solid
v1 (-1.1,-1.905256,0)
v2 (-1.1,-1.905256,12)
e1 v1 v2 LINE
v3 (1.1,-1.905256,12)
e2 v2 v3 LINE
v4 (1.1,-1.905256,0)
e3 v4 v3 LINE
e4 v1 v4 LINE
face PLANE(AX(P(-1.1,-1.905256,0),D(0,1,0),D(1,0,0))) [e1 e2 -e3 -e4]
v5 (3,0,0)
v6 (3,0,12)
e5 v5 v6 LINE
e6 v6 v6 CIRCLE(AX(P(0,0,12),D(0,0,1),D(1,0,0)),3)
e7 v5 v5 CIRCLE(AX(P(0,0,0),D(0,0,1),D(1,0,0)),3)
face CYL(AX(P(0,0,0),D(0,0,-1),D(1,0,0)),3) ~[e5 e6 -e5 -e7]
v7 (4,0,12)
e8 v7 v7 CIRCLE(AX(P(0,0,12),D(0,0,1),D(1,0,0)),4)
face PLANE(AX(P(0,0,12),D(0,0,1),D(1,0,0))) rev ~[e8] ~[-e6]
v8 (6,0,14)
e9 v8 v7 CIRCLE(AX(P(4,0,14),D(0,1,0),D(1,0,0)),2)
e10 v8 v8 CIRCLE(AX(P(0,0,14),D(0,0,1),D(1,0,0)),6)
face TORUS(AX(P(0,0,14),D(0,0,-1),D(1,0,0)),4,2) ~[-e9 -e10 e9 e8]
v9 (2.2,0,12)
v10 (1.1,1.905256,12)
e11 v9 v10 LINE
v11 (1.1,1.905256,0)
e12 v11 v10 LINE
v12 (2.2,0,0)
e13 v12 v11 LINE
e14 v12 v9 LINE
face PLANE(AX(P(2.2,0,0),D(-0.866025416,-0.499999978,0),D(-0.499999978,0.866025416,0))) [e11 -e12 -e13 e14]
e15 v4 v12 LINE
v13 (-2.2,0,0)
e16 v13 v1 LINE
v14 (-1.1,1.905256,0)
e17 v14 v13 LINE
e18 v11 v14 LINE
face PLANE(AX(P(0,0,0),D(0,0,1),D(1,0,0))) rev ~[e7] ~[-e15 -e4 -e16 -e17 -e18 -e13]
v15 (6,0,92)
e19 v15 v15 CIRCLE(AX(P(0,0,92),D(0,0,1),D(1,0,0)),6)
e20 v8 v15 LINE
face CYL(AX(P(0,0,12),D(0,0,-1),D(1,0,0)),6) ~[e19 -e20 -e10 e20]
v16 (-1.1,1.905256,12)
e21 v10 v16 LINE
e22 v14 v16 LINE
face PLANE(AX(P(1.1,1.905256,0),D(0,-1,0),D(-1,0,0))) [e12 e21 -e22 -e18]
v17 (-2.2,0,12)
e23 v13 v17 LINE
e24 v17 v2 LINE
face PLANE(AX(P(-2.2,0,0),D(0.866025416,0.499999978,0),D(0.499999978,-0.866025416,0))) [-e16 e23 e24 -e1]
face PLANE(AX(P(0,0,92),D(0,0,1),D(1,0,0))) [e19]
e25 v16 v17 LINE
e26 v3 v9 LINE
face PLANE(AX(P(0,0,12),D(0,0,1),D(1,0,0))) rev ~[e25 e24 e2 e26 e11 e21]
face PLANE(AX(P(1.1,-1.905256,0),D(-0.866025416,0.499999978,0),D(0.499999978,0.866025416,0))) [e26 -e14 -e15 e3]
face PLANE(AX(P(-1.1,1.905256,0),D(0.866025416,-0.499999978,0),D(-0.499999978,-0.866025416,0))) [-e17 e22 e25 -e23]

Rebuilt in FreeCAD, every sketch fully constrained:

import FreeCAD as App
import Part
import Sketcher
from FreeCAD import Vector
Q = App.Units.Quantity


def edges_at(feature, points):
    """Names of the edges that pass closest to the given points."""
    edges = feature.Shape.Edges
    near = lambda p: min(range(len(edges)), key=lambda i: edges[i].distToShape(Part.Vertex(*p))[0])
    return sorted({f"Edge{near(p) + 1}" for p in points})

doc = App.newDocument("Part")
params = doc.addObject("Spreadsheet::Sheet", "Params")
for row, (alias, value) in enumerate([
    ("sketch1_diameter", "6 mm"),
    ("sketch1_width", "2.2 mm"),
    ("sketch1_length", "2.2 mm"),
    ("pad1_length", "12 mm"),
    ("sketch2_diameter", "12 mm"),
    ("pad2_length", "80 mm"),
    ("fillet_radius", "2 mm"),
], start=1):
    params.set(f"A{row}", alias)
    params.set(f"B{row}", "=" + value)
    params.setAlias(f"B{row}", alias)

body = doc.addObject("PartDesign::Body", "Body")

sketch1 = body.newObject("Sketcher::SketchObject", "Sketch")
sketch1.AttachmentSupport = (doc.getObject("XY_Plane"), [""])
sketch1.MapMode = "FlatFace"
sketch1.addGeometry([
    Part.Circle(Vector(0, 0, 0), Vector(0, 0, 1), 3),
    Part.LineSegment(Vector(1.1, 1.9, 0), Vector(2.2, 0, 0)),
    Part.LineSegment(Vector(2.2, 0, 0), Vector(1.1, -1.9, 0)),
    Part.LineSegment(Vector(1.1, -1.9, 0), Vector(-1.1, -1.9, 0)),
    Part.LineSegment(Vector(-1.1, -1.9, 0), Vector(-2.2, 0, 0)),
    Part.LineSegment(Vector(-2.2, 0, 0), Vector(-1.1, 1.9, 0)),
    Part.LineSegment(Vector(-1.1, 1.9, 0), Vector(1.1, 1.9, 0)),
], False)
sketch1.addConstraint([
    Sketcher.Constraint("Coincident", 1, 2, 2, 1),
    Sketcher.Constraint("Coincident", 2, 2, 3, 1),
    Sketcher.Constraint("Coincident", 3, 2, 4, 1),
    Sketcher.Constraint("Coincident", 4, 2, 5, 1),
    Sketcher.Constraint("Coincident", 5, 2, 6, 1),
    Sketcher.Constraint("Coincident", 6, 2, 1, 1),
    Sketcher.Constraint("Horizontal", 3),
    Sketcher.Constraint("Horizontal", 6),
    Sketcher.Constraint("Coincident", 0, 3, -1, 1),
    Sketcher.Constraint("Symmetric", 1, 2, 4, 2, -1, 1),
    Sketcher.Constraint("Symmetric", 2, 2, 5, 2, -1, 1),
    Sketcher.Constraint("PointOnObject", 1, 2, -1),
    Sketcher.Constraint("Parallel", 1, 4),
    Sketcher.Constraint("Vertical", 3, 2, 5, 2),
    Sketcher.Constraint("Diameter", 0, 6.0),
    Sketcher.Constraint("Angle", 1, Q("-60.000001 deg")),
    Sketcher.Constraint("DistanceX", 3, 2, 3, 1, 2.2),
    Sketcher.Constraint("Distance", 1, 2.2),
])
sketch1.setExpression("Constraints[14]", "Params.sketch1_diameter")
sketch1.setExpression("Constraints[16]", "Params.sketch1_width")
sketch1.setExpression("Constraints[17]", "Params.sketch1_length")
pad1 = body.newObject("PartDesign::Pad", "Pad")
pad1.Profile = sketch1
pad1.setExpression("Length", "Params.pad1_length")

sketch2 = body.newObject("Sketcher::SketchObject", "Sketch001")
sketch2.AttachmentSupport = (doc.getObject("XY_Plane"), [""])
sketch2.MapMode = "FlatFace"
sketch2.AttachmentOffset = App.Placement(Vector(0, 0, 12), App.Rotation())
sketch2.addGeometry(Part.Circle(Vector(0, 0, 0), Vector(0, 0, 1), 6), False)
sketch2.addConstraint([
    Sketcher.Constraint("Coincident", 0, 3, -1, 1),
    Sketcher.Constraint("Diameter", 0, 12.0),
])
sketch2.setExpression("Constraints[1]", "Params.sketch2_diameter")
pad2 = body.newObject("PartDesign::Pad", "Pad001")
pad2.Profile = sketch2
pad2.setExpression("Length", "Params.pad2_length")
doc.recompute()

fillet = body.newObject("PartDesign::Fillet", "Fillet")
fillet.Base = (pad2, edges_at(pad2, [(-6, 0, 12)]))
fillet.setExpression("Radius", "Params.fillet_radius")

doc.recompute()
